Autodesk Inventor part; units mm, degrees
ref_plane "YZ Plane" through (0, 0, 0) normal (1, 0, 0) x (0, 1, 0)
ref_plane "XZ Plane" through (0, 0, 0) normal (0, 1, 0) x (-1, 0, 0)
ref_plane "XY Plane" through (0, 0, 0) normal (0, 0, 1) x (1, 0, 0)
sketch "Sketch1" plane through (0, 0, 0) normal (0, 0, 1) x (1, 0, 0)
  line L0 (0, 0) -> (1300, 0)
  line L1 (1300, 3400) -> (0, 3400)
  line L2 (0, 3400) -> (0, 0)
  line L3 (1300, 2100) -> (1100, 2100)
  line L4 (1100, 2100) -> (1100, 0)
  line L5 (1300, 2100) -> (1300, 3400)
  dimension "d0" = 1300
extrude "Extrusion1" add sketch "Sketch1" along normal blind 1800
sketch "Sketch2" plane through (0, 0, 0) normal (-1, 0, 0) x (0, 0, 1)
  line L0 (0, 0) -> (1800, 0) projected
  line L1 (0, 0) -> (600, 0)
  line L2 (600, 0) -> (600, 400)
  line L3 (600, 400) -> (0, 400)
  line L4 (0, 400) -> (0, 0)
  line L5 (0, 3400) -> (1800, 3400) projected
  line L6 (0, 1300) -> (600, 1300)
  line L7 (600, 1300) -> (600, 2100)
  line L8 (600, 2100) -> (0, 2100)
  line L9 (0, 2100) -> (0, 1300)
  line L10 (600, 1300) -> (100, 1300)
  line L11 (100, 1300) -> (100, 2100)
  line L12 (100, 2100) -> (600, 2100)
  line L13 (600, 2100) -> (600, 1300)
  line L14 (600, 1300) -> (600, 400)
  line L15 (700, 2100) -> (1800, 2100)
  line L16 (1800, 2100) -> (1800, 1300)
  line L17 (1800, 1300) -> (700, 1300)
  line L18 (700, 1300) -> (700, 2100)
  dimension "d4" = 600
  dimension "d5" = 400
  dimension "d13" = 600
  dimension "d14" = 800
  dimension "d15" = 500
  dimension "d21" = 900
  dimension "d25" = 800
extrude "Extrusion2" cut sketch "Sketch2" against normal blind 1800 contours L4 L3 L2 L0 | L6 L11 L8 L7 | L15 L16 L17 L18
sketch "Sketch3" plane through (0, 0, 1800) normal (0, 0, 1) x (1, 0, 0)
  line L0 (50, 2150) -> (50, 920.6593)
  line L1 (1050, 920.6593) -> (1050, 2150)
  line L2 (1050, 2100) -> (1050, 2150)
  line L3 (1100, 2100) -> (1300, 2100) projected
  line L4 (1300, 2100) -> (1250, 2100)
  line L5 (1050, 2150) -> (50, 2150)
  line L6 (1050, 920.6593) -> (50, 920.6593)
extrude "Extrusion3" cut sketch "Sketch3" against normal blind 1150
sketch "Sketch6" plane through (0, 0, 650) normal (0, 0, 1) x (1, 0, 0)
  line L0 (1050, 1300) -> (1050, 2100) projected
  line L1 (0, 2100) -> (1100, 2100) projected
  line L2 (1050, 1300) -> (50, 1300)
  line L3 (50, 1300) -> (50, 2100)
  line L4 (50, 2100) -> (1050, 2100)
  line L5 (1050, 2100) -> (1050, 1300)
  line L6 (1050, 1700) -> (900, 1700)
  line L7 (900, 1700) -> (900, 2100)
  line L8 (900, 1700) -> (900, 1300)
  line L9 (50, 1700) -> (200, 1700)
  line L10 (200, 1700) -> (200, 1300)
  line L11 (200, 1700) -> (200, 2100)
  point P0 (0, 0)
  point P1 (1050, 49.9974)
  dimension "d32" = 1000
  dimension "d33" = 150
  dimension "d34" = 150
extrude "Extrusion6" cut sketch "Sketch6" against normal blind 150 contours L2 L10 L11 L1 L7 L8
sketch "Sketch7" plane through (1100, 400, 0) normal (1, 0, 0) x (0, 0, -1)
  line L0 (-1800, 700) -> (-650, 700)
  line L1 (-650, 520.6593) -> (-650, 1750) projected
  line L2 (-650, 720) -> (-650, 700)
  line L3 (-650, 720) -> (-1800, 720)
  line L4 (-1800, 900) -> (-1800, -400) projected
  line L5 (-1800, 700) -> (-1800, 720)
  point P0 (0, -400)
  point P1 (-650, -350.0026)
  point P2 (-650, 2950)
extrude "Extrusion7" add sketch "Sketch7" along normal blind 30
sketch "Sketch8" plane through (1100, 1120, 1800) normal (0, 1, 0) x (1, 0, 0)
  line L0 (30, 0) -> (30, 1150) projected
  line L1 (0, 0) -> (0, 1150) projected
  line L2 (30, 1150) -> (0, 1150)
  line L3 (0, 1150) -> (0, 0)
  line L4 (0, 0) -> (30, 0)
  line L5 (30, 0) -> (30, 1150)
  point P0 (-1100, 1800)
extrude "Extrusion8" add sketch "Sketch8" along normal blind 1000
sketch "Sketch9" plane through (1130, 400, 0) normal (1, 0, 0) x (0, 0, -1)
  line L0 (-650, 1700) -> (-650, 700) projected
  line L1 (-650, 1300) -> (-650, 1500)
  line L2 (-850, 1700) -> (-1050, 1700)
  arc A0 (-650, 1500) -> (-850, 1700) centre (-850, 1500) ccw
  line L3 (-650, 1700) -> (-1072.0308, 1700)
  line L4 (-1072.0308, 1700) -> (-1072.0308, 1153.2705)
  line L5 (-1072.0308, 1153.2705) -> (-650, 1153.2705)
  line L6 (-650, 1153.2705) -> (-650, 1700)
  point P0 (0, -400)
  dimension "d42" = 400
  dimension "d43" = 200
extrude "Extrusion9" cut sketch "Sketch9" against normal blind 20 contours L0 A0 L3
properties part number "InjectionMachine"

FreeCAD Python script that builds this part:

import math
import FreeCAD as App
import Part
import Sketcher
from FreeCAD import Vector

doc = App.newDocument("Part")
body = doc.addObject("PartDesign::Body", "Body")

sketch1 = body.newObject("Sketcher::SketchObject", "Sketch")
sketch1.AttachmentSupport = (doc.getObject("XY_Plane"), [""])
sketch1.MapMode = "FlatFace"
sketch1.addGeometry([
    Part.LineSegment(Vector(0, 3400, 0), Vector(0, 0, 0)),
    Part.LineSegment(Vector(0, 0, 0), Vector(1100, 0, 0)),
    Part.LineSegment(Vector(1100, 0, 0), Vector(1100, 2100, 0)),
    Part.LineSegment(Vector(1100, 2100, 0), Vector(1300, 2100, 0)),
    Part.LineSegment(Vector(1300, 2100, 0), Vector(1300, 3400, 0)),
    Part.LineSegment(Vector(1300, 3400, 0), Vector(0, 3400, 0)),
], False)
sketch1.addConstraint([
    Sketcher.Constraint("Coincident", 0, 2, 1, 1),
    Sketcher.Constraint("Coincident", 1, 2, 2, 1),
    Sketcher.Constraint("Coincident", 2, 2, 3, 1),
    Sketcher.Constraint("Coincident", 3, 2, 4, 1),
    Sketcher.Constraint("Coincident", 4, 2, 5, 1),
    Sketcher.Constraint("Coincident", 5, 2, 0, 1),
    Sketcher.Constraint("Vertical", 0),
    Sketcher.Constraint("Horizontal", 1),
    Sketcher.Constraint("Vertical", 2),
    Sketcher.Constraint("Horizontal", 3),
    Sketcher.Constraint("Vertical", 4),
    Sketcher.Constraint("Horizontal", 5),
    Sketcher.Constraint("Coincident", 0, 2, -1, 1),
    Sketcher.Constraint("Equal", 5, 4),
    Sketcher.Constraint("DistanceX", 5, 2, 5, 1, 1300.0),
    Sketcher.Constraint("DistanceX", 1, 1, 1, 2, 1100.0),
    Sketcher.Constraint("DistanceY", 0, 2, 0, 1, 3400.0),
])
pad1 = body.newObject("PartDesign::Pad", "Pad")
pad1.Profile = sketch1
pad1.Length = 1800

sketch2 = body.newObject("Sketcher::SketchObject", "Sketch001")
sketch2.AttachmentSupport = (doc.getObject("YZ_Plane"), [""])
sketch2.MapMode = "FlatFace"
sketch2.addGeometry([
    Part.LineSegment(Vector(400, 0, 0), Vector(0, 0, 0)),
    Part.LineSegment(Vector(0, 0, 0), Vector(0, 600, 0)),
    Part.LineSegment(Vector(0, 600, 0), Vector(400, 600, 0)),
    Part.LineSegment(Vector(400, 600, 0), Vector(400, 0, 0)),
    Part.LineSegment(Vector(1300, 100, 0), Vector(1300, 600, 0)),
    Part.LineSegment(Vector(1300, 600, 0), Vector(2100, 600, 0)),
    Part.LineSegment(Vector(2100, 600, 0), Vector(2100, 100, 0)),
    Part.LineSegment(Vector(2100, 100, 0), Vector(1300, 100, 0)),
    Part.LineSegment(Vector(2100, 1800, 0), Vector(2100, 700, 0)),
    Part.LineSegment(Vector(2100, 700, 0), Vector(1300, 700, 0)),
    Part.LineSegment(Vector(1300, 700, 0), Vector(1300, 1800, 0)),
    Part.LineSegment(Vector(1300, 1800, 0), Vector(2100, 1800, 0)),
], False)
sketch2.addConstraint([
    Sketcher.Constraint("Coincident", 0, 2, 1, 1),
    Sketcher.Constraint("Coincident", 1, 2, 2, 1),
    Sketcher.Constraint("Coincident", 2, 2, 3, 1),
    Sketcher.Constraint("Coincident", 3, 2, 0, 1),
    Sketcher.Constraint("Coincident", 4, 2, 5, 1),
    Sketcher.Constraint("Coincident", 5, 2, 6, 1),
    Sketcher.Constraint("Coincident", 6, 2, 7, 1),
    Sketcher.Constraint("Coincident", 7, 2, 4, 1),
    Sketcher.Constraint("Coincident", 8, 2, 9, 1),
    Sketcher.Constraint("Coincident", 9, 2, 10, 1),
    Sketcher.Constraint("Coincident", 10, 2, 11, 1),
    Sketcher.Constraint("Coincident", 11, 2, 8, 1),
    Sketcher.Constraint("Horizontal", 0),
    Sketcher.Constraint("Vertical", 1),
    Sketcher.Constraint("Horizontal", 2),
    Sketcher.Constraint("Vertical", 3),
    Sketcher.Constraint("Vertical", 4),
    Sketcher.Constraint("Horizontal", 5),
    Sketcher.Constraint("Vertical", 6),
    Sketcher.Constraint("Horizontal", 7),
    Sketcher.Constraint("Vertical", 8),
    Sketcher.Constraint("Horizontal", 9),
    Sketcher.Constraint("Vertical", 10),
    Sketcher.Constraint("Horizontal", 11),
    Sketcher.Constraint("Coincident", 0, 2, -1, 1),
    Sketcher.Constraint("Horizontal", 2, 2, 4, 2),
    Sketcher.Constraint("Vertical", 6, 2, 8, 2),
    Sketcher.Constraint("Vertical", 7, 2, 9, 2),
    Sketcher.Constraint("DistanceX", 0, 2, 0, 1, 400.0),
    Sketcher.Constraint("DistanceX", 5, 1, 5, 2, 800.0),
    Sketcher.Constraint("DistanceY", 1, 1, 1, 2, 600.0),
    Sketcher.Constraint("DistanceY", 4, 1, 4, 2, 500.0),
    Sketcher.Constraint("DistanceX", 2, 2, 4, 2, 900.0),
    Sketcher.Constraint("DistanceY", 6, 2, 8, 2, 600.0),
    Sketcher.Constraint("DistanceY", 8, 2, 8, 1, 1100.0),
])
pocket1 = body.newObject("PartDesign::Pocket", "Pocket")
pocket1.Profile = sketch2
pocket1.Length = 1800
pocket1.Reversed = True

sketch3 = body.newObject("Sketcher::SketchObject", "Sketch002")
sketch3.AttachmentSupport = (doc.getObject("XY_Plane"), [""])
sketch3.MapMode = "FlatFace"
sketch3.AttachmentOffset = App.Placement(Vector(0, 0, 1800), App.Rotation())
sketch3.addGeometry([
    Part.LineSegment(Vector(1050, 2150, 0), Vector(50, 2150, 0)),
    Part.LineSegment(Vector(50, 2150, 0), Vector(50, 921, 0)),
    Part.LineSegment(Vector(50, 921, 0), Vector(1050, 921, 0)),
    Part.LineSegment(Vector(1050, 921, 0), Vector(1050, 2150, 0)),
], False)
sketch3.addConstraint([
    Sketcher.Constraint("Coincident", 0, 2, 1, 1),
    Sketcher.Constraint("Coincident", 1, 2, 2, 1),
    Sketcher.Constraint("Coincident", 2, 2, 3, 1),
    Sketcher.Constraint("Coincident", 3, 2, 0, 1),
    Sketcher.Constraint("Horizontal", 0),
    Sketcher.Constraint("Vertical", 1),
    Sketcher.Constraint("Horizontal", 2),
    Sketcher.Constraint("Vertical", 3),
    Sketcher.Constraint("DistanceX", 0, 2, 0, 1, 1000.0),
    Sketcher.Constraint("DistanceX", -1, 1, 0, 2, 50.0),
    Sketcher.Constraint("DistanceY", -1, 1, 0, 2, 2150.0),
    Sketcher.Constraint("DistanceY", 1, 2, 1, 1, 1229.3407),
])
pocket2 = body.newObject("PartDesign::Pocket", "Pocket001")
pocket2.Profile = sketch3
pocket2.Length = 1150

sketch4 = body.newObject("Sketcher::SketchObject", "Sketch003")
sketch4.AttachmentSupport = (doc.getObject("XY_Plane"), [""])
sketch4.MapMode = "FlatFace"
sketch4.AttachmentOffset = App.Placement(Vector(0, 0, 650), App.Rotation())
sketch4.addGeometry([
    Part.LineSegment(Vector(200, 1300, 0), Vector(900, 1300, 0)),
    Part.LineSegment(Vector(900, 1300, 0), Vector(900, 2100, 0)),
    Part.LineSegment(Vector(900, 2100, 0), Vector(200, 2100, 0)),
    Part.LineSegment(Vector(200, 2100, 0), Vector(200, 1300, 0)),
], False)
sketch4.addConstraint([
    Sketcher.Constraint("Coincident", 0, 2, 1, 1),
    Sketcher.Constraint("Coincident", 1, 2, 2, 1),
    Sketcher.Constraint("Coincident", 2, 2, 3, 1),
    Sketcher.Constraint("Coincident", 3, 2, 0, 1),
    Sketcher.Constraint("Horizontal", 0),
    Sketcher.Constraint("Vertical", 1),
    Sketcher.Constraint("Horizontal", 2),
    Sketcher.Constraint("Vertical", 3),
    Sketcher.Constraint("DistanceX", 0, 1, 0, 2, 700.0),
    Sketcher.Constraint("DistanceY", 1, 1, 1, 2, 800.0),
    Sketcher.Constraint("DistanceX", -1, 1, 0, 2, 900.0),
    Sketcher.Constraint("DistanceY", -1, 1, 0, 2, 1300.0),
])
pocket3 = body.newObject("PartDesign::Pocket", "Pocket002")
pocket3.Profile = sketch4
pocket3.Length = 150

sketch5 = body.newObject("Sketcher::SketchObject", "Sketch004")
sketch5.AttachmentSupport = (doc.getObject("YZ_Plane"), [""])
sketch5.MapMode = "FlatFace"
sketch5.AttachmentOffset = App.Placement(Vector(0, 0, 1100), App.Rotation())
sketch5.addGeometry([
    Part.LineSegment(Vector(1120, 1800, 0), Vector(1100, 1800, 0)),
    Part.LineSegment(Vector(1100, 1800, 0), Vector(1100, 650, 0)),
    Part.LineSegment(Vector(1100, 650, 0), Vector(1120, 650, 0)),
    Part.LineSegment(Vector(1120, 650, 0), Vector(1120, 1800, 0)),
], False)
sketch5.addConstraint([
    Sketcher.Constraint("Coincident", 0, 2, 1, 1),
    Sketcher.Constraint("Coincident", 1, 2, 2, 1),
    Sketcher.Constraint("Coincident", 2, 2, 3, 1),
    Sketcher.Constraint("Coincident", 3, 2, 0, 1),
    Sketcher.Constraint("Horizontal", 0),
    Sketcher.Constraint("Vertical", 1),
    Sketcher.Constraint("Horizontal", 2),
    Sketcher.Constraint("Vertical", 3),
    Sketcher.Constraint("DistanceX", 0, 2, 0, 1, 20.0),
    Sketcher.Constraint("DistanceY", 1, 2, 1, 1, 1150.0),
    Sketcher.Constraint("DistanceX", -1, 1, 0, 2, 1100.0),
    Sketcher.Constraint("DistanceY", -1, 1, 0, 2, 1800.0),
])
pad2 = body.newObject("PartDesign::Pad", "Pad001")
pad2.Profile = sketch5
pad2.Length = 30

sketch6 = body.newObject("Sketcher::SketchObject", "Sketch005")
sketch6.AttachmentSupport = (doc.getObject("XZ_Plane"), [""])
sketch6.MapMode = "FlatFace"
sketch6.AttachmentOffset = App.Placement(Vector(0, 0, -1120), App.Rotation())
sketch6.addGeometry([
    Part.LineSegment(Vector(1100, 1800, 0), Vector(1130, 1800, 0)),
    Part.LineSegment(Vector(1130, 1800, 0), Vector(1130, 650, 0)),
    Part.LineSegment(Vector(1130, 650, 0), Vector(1100, 650, 0)),
    Part.LineSegment(Vector(1100, 650, 0), Vector(1100, 1800, 0)),
], False)
sketch6.addConstraint([
    Sketcher.Constraint("Coincident", 0, 2, 1, 1),
    Sketcher.Constraint("Coincident", 1, 2, 2, 1),
    Sketcher.Constraint("Coincident", 2, 2, 3, 1),
    Sketcher.Constraint("Coincident", 3, 2, 0, 1),
    Sketcher.Constraint("Horizontal", 0),
    Sketcher.Constraint("Vertical", 1),
    Sketcher.Constraint("Horizontal", 2),
    Sketcher.Constraint("Vertical", 3),
    Sketcher.Constraint("DistanceX", 0, 1, 0, 2, 30.0),
    Sketcher.Constraint("DistanceY", 1, 2, 1, 1, 1150.0),
    Sketcher.Constraint("DistanceX", -1, 1, 0, 2, 1130.0),
    Sketcher.Constraint("DistanceY", -1, 1, 0, 2, 1800.0),
])
pad3 = body.newObject("PartDesign::Pad", "Pad002")
pad3.Profile = sketch6
pad3.Length = 1000
pad3.Reversed = True

sketch7 = body.newObject("Sketcher::SketchObject", "Sketch006")
sketch7.AttachmentSupport = (doc.getObject("YZ_Plane"), [""])
sketch7.MapMode = "FlatFace"
sketch7.AttachmentOffset = App.Placement(Vector(0, 0, 1130), App.Rotation())
sketch7.addGeometry([
    Part.LineSegment(Vector(1900, 650, 0), Vector(2100, 650, 0)),
    Part.LineSegment(Vector(2100, 650, 0), Vector(2100, 850, 0)),
    Part.ArcOfCircle(Part.Circle(Vector(1900, 850, 0), Vector(0, 0, 1), 200), math.radians(-90), math.radians(0)),
], False)
sketch7.addConstraint([
    Sketcher.Constraint("Coincident", 0, 2, 1, 1),
    Sketcher.Constraint("Tangent", 1, 2, 2, 2),
    Sketcher.Constraint("Tangent", 2, 1, 0, 1),
    Sketcher.Constraint("Horizontal", 0),
    Sketcher.Constraint("Vertical", 1),
    Sketcher.Constraint("Radius", 2, 200.0),
    Sketcher.Constraint("DistanceX", -1, 1, 2, 3, 1900.0),
    Sketcher.Constraint("DistanceY", -1, 1, 2, 3, 850.0),
])
pocket4 = body.newObject("PartDesign::Pocket", "Pocket003")
pocket4.Profile = sketch7
pocket4.Length = 20

doc.recompute()
